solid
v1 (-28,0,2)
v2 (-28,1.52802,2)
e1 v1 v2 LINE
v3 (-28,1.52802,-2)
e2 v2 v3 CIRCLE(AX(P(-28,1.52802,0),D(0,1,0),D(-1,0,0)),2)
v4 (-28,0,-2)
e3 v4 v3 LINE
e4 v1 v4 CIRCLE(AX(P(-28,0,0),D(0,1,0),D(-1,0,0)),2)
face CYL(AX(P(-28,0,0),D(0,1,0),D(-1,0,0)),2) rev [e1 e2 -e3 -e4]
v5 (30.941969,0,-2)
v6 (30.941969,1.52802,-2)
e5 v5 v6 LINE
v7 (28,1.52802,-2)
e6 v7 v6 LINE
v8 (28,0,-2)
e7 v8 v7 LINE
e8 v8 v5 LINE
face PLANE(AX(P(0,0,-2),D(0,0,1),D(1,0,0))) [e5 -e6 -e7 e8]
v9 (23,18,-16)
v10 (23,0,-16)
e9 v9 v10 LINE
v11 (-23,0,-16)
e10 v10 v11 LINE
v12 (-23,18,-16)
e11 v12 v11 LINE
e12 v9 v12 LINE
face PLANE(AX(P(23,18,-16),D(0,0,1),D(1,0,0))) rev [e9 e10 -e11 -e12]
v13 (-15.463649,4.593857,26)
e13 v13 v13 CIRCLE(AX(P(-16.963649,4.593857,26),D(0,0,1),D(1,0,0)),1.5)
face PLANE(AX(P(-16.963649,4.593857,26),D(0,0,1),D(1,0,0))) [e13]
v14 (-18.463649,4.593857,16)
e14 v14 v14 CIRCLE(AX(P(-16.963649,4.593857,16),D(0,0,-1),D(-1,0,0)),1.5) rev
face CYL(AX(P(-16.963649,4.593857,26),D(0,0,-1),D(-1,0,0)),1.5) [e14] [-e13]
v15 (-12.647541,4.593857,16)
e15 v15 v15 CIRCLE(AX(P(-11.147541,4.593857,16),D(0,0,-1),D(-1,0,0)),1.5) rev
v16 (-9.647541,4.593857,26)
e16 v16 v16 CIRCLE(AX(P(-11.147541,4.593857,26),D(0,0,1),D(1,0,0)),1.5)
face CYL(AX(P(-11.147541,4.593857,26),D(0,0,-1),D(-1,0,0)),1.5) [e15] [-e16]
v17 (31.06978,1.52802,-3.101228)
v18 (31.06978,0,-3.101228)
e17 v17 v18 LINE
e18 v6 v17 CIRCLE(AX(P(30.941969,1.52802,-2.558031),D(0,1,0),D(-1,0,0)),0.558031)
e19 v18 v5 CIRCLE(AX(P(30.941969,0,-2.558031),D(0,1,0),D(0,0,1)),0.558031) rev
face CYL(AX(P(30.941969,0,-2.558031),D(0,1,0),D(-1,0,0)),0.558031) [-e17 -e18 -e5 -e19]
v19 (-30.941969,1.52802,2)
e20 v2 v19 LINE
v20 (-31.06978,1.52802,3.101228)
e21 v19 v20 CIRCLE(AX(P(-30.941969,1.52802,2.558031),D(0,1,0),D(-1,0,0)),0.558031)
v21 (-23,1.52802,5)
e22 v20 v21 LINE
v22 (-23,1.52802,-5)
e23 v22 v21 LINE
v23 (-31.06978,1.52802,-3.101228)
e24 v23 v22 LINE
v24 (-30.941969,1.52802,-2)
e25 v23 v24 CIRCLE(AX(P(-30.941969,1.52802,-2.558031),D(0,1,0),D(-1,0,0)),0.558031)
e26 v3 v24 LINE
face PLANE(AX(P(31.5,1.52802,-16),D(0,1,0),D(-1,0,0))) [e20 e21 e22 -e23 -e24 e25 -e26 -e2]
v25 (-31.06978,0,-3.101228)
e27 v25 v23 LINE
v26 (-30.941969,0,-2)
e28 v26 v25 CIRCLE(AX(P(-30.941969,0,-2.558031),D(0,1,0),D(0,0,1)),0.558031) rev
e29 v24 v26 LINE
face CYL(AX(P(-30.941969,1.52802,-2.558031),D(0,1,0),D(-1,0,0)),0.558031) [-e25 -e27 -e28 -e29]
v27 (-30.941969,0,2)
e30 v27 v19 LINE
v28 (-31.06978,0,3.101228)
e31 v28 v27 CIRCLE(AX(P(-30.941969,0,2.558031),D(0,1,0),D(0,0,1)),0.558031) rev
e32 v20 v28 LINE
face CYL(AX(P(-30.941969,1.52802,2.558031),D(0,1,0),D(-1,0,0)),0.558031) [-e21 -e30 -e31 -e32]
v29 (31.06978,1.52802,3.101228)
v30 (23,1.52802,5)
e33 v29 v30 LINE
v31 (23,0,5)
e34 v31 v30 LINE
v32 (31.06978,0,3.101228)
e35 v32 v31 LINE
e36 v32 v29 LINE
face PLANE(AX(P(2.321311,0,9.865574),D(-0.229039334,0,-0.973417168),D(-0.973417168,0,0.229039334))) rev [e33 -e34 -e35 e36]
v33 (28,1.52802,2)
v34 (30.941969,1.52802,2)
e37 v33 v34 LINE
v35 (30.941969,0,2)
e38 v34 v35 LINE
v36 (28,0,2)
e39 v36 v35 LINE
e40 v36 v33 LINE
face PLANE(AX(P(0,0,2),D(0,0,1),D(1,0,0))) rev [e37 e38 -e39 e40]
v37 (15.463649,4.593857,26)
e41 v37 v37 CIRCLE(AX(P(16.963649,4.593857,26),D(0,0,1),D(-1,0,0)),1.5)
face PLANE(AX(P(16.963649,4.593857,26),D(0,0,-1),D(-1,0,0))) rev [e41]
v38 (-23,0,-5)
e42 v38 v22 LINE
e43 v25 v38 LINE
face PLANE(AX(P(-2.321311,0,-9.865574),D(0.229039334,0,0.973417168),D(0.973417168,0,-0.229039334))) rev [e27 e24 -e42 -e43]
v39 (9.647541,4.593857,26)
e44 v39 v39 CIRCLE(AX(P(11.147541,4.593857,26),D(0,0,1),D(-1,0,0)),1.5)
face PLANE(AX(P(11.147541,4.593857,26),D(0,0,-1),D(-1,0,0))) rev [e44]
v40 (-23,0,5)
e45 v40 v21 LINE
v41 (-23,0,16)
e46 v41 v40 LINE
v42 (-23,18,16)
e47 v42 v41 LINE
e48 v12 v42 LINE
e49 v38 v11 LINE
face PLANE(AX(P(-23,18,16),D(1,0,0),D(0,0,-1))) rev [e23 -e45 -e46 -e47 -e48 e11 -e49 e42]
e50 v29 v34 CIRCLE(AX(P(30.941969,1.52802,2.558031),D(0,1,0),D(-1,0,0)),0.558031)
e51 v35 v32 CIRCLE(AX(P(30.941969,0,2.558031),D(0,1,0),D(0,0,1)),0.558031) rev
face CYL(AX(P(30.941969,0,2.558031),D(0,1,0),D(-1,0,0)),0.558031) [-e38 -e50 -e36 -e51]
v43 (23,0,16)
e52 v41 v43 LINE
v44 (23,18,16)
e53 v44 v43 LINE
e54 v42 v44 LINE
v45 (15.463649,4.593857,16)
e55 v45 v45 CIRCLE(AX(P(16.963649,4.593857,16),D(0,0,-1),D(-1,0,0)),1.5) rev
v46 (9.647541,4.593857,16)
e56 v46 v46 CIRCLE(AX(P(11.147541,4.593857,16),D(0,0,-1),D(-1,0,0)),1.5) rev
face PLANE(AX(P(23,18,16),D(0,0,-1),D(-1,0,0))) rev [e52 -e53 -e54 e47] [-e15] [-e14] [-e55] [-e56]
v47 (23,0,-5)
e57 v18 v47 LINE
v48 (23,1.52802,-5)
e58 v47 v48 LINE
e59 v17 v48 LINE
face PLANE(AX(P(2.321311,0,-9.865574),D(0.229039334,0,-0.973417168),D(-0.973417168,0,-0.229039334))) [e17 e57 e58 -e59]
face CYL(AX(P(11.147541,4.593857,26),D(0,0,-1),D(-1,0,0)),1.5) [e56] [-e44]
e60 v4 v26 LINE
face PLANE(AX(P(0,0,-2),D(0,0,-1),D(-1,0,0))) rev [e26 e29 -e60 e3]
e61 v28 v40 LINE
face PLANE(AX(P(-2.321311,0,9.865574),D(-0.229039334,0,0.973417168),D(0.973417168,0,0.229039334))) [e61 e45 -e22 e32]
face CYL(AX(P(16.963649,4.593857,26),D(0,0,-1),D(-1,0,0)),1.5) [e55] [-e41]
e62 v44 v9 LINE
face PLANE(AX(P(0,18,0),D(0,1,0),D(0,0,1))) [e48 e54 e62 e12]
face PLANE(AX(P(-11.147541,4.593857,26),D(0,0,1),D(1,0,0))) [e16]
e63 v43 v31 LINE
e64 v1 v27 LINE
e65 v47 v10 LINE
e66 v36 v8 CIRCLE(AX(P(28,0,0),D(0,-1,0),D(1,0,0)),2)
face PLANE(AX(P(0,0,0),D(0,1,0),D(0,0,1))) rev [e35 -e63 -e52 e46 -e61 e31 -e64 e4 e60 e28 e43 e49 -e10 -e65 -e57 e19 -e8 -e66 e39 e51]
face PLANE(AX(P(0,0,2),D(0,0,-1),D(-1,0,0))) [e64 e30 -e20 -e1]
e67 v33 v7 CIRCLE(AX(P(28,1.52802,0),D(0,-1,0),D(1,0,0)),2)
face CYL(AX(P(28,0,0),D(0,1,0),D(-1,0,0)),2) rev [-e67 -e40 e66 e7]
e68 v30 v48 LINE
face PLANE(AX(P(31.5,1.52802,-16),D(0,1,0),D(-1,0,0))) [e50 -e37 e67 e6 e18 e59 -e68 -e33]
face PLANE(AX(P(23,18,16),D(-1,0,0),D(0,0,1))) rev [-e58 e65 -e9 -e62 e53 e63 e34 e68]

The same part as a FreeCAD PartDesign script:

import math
import FreeCAD as App
import Part
import Sketcher


def edges_at(feature, points):
    """Names of the edges that pass closest to the given points."""
    edges = feature.Shape.Edges
    near = lambda p: min(range(len(edges)), key=lambda i: edges[i].distToShape(Part.Vertex(*p))[0])
    return sorted({f"Edge{near(p) + 1}" for p in points})


def add_polygon(sketch, points):
    """Adds a closed chain of lines whose ends are joined by coincident constraints."""
    first, n = sketch.GeometryCount, len(points)
    for a, b in zip(points, points[1:] + points[:1]):
        sketch.addGeometry(Part.LineSegment(App.Vector(*a, 0), App.Vector(*b, 0)), False)
    for i in range(n):
        sketch.addConstraint(Sketcher.Constraint("Coincident", first + i, 2, first + (i + 1) % n, 1))

doc = App.newDocument("Part")
params = doc.addObject("Spreadsheet::Sheet", "Params")
for row, (alias, value) in enumerate([
    ("sketch1_width", "46 mm"),
    ("sketch1_height", "32 mm"),
    ("pad1_length", "18 mm"),
    ("sketch2_width", "63 mm"),
    ("sketch3_radius", "2 mm"),
    ("sketch3_height", "13 mm"),
    ("sketch3_height2", "11 mm"),
    ("sketch3_width", "8.5 mm"),
    ("sketch3_width2", "3.5 mm"),
    ("fillet_radius", "0.558031 mm"),
    ("fillet2_radius", "0.558031 mm"),
    ("fillet3_radius", "0.558031 mm"),
    ("fillet4_radius", "0.558031 mm"),
    ("sketch4_diameter", "3 mm"),
    ("pad3_length", "10 mm"),
], start=1):
    params.set(f"A{row}", alias)
    params.set(f"B{row}", "=" + value)
    params.setAlias(f"B{row}", alias)

body = doc.addObject("PartDesign::Body", "Body")

# Sketch on XZ plane
sketch1 = body.newObject("Sketcher::SketchObject", "Sketch")
sketch1.AttachmentSupport = (doc.getObject("XZ_Plane"), [""])
sketch1.MapMode = "FlatFace"
add_polygon(sketch1, [(-23, -16), (-23, 16), (23, 16), (23, -16)])  # lines 0-3
sketch1.addConstraint([
    Sketcher.Constraint("Vertical", 0),
    Sketcher.Constraint("Horizontal", 1),
    Sketcher.Constraint("Vertical", 2),
    Sketcher.Constraint("Horizontal", 3),
    Sketcher.Constraint("Symmetric", 0, 2, 2, 2, -1, 1),
    Sketcher.Constraint("DistanceX", 1, 1, 1, 2, 46.0),
    Sketcher.Constraint("DistanceY", 0, 1, 0, 2, 32.0),
])
sketch1.setExpression("Constraints[9]", "Params.sketch1_width")
sketch1.setExpression("Constraints[10]", "Params.sketch1_height")
pad1 = body.newObject("PartDesign::Pad", "Pad")
pad1.Profile = sketch1
pad1.setExpression("Length", "Params.pad1_length")
pad1.Reversed = True

# Sketch on XY plane
sketch2 = body.newObject("Sketcher::SketchObject", "Sketch001")
sketch2.AttachmentSupport = (doc.getObject("XY_Plane"), [""])
sketch2.MapMode = "FlatFace"
sketch2.AttachmentOffset = App.Placement(App.Vector(0, 0, 16), App.Rotation())
add_polygon(sketch2, [(-31.5, 1.5), (-31.5, 0), (31.5, 0), (31.5, 1.5)])  # lines 0-3
sketch2.addConstraint([
    Sketcher.Constraint("Vertical", 0),
    Sketcher.Constraint("Horizontal", 1),
    Sketcher.Constraint("Vertical", 2),
    Sketcher.Constraint("Horizontal", 3),
    Sketcher.Constraint("Symmetric", 0, 2, 1, 2, -1, 1),
    Sketcher.Constraint("DistanceX", 1, 1, 1, 2, 63.0),
    Sketcher.Constraint("DistanceY", 0, 2, 0, 1, 1.52802),
])
sketch2.setExpression("Constraints[9]", "Params.sketch2_width")
pad2 = body.newObject("PartDesign::Pad", "Pad001")
pad2.Profile = sketch2
pad2.Type = "UpToLast"
pad2.Reversed = True

# Sketch on XZ plane
sketch3 = body.newObject("Sketcher::SketchObject", "Sketch002")
sketch3.AttachmentSupport = (doc.getObject("XZ_Plane"), [""])
sketch3.MapMode = "FlatFace"
sketch3.AttachmentOffset = App.Placement(App.Vector(0, 0, -1.52802), App.Rotation())
add_polygon(sketch3, [(-31.5, -16), (-31.5, -3), (-23, -5), (-23, -16)])  # lines 0-3
add_polygon(sketch3, [(-23, 5), (-31.5, 3), (-31.5, 16), (-23, 16)])  # lines 4-7
sketch3.addGeometry(Part.ArcOfCircle(Part.Circle(App.Vector(-28, 0, 0), App.Vector(0, 0, 1), 2), math.radians(-90), math.radians(90)), False)  # 8
sketch3.addGeometry(Part.LineSegment(App.Vector(-28, -2, 0), App.Vector(-31.5, -2, 0)), False)  # 9
sketch3.addGeometry(Part.LineSegment(App.Vector(-31.5, -2, 0), App.Vector(-31.5, 2, 0)), False)  # 10
sketch3.addGeometry(Part.LineSegment(App.Vector(-31.5, 2, 0), App.Vector(-28, 2, 0)), False)  # 11
sketch3.addConstraint([
    Sketcher.Constraint("Tangent", 8, 1, 9, 1),
    Sketcher.Constraint("Coincident", 9, 2, 10, 1),
    Sketcher.Constraint("Coincident", 10, 2, 11, 1),
    Sketcher.Constraint("Tangent", 11, 2, 8, 2),
    Sketcher.Constraint("Vertical", 0),
    Sketcher.Constraint("Vertical", 2),
    Sketcher.Constraint("Horizontal", 3),
    Sketcher.Constraint("Vertical", 5),
    Sketcher.Constraint("Horizontal", 6),
    Sketcher.Constraint("Vertical", 7),
    Sketcher.Constraint("Horizontal", 9),
    Sketcher.Constraint("Vertical", 10),
    Sketcher.Constraint("Horizontal", 11),
    Sketcher.Constraint("Symmetric", 0, 2, 4, 2, -1),
    Sketcher.Constraint("Symmetric", 2, 2, 6, 2, -1),
    Sketcher.Constraint("PointOnObject", 8, 3, -1),
    Sketcher.Constraint("Vertical", 5, 2, 9, 2),
    Sketcher.Constraint("Equal", 2, 7),
    Sketcher.Constraint("Radius", 8, 2.0),
    Sketcher.Constraint("DistanceY", 0, 1, 0, 2, 13.0),
    Sketcher.Constraint("DistanceY", 2, 2, 2, 1, 11.0),
    Sketcher.Constraint("DistanceX", 3, 2, 3, 1, 8.5),
    Sketcher.Constraint("DistanceX", 9, 2, 9, 1, 3.5),
    Sketcher.Constraint("DistanceX", 8, 3, -1, 1, 28.0),
    Sketcher.Constraint("DistanceY", 0, 2, -1, 1, 3.0),
])
sketch3.setExpression("Constraints[26]", "Params.sketch3_radius")
sketch3.setExpression("Constraints[27]", "Params.sketch3_height")
sketch3.setExpression("Constraints[28]", "Params.sketch3_height2")
sketch3.setExpression("Constraints[29]", "Params.sketch3_width")
sketch3.setExpression("Constraints[30]", "Params.sketch3_width2")
pocket1 = body.newObject("PartDesign::Pocket", "Pocket")
pocket1.Profile = sketch3
pocket1.Type = "ThroughAll"
pocket1.Reversed = True
doc.recompute()

fillet = body.newObject("PartDesign::Fillet", "Fillet")
fillet.Base = (pocket1, edges_at(pocket1, [(-31.5, 0.764, -3), (-31.5, 0.764, -2)]))
fillet.setExpression("Radius", "Params.fillet_radius")
doc.recompute()

fillet2 = body.newObject("PartDesign::Fillet", "Fillet001")
fillet2.Base = (fillet, edges_at(fillet, [(-31.5, 0.764, 3), (-31.5, 0.764, 2)]))
fillet2.setExpression("Radius", "Params.fillet2_radius")
doc.recompute()

mirrored = body.newObject("PartDesign::Mirrored", "Mirrored")
mirrored.Originals = [pocket1]
mirrored.MirrorPlane = (doc.getObject("YZ_Plane"), [""])
body.Tip = mirrored
doc.recompute()

fillet3 = body.newObject("PartDesign::Fillet", "Fillet002")
fillet3.Base = (mirrored, edges_at(mirrored, [(31.5, 0.764, -3), (31.5, 0.764, -2)]))
fillet3.setExpression("Radius", "Params.fillet3_radius")
doc.recompute()

fillet4 = body.newObject("PartDesign::Fillet", "Fillet003")
fillet4.Base = (fillet3, edges_at(fillet3, [(31.5, 0.764, 3), (31.5, 0.764, 2)]))
fillet4.setExpression("Radius", "Params.fillet4_radius")

# Sketch on XY plane
sketch4 = body.newObject("Sketcher::SketchObject", "Sketch003")
sketch4.AttachmentSupport = (doc.getObject("XY_Plane"), [""])
sketch4.MapMode = "FlatFace"
sketch4.AttachmentOffset = App.Placement(App.Vector(0, 0, 16), App.Rotation())
sketch4.addGeometry([
    Part.Circle(App.Vector(-17, 4.6, 0), App.Vector(0, 0, 1), 1.5),
    Part.Circle(App.Vector(-11.1, 4.6, 0), App.Vector(0, 0, 1), 1.5),
    Part.Circle(App.Vector(11.1, 4.6, 0), App.Vector(0, 0, 1), 1.5),
    Part.Circle(App.Vector(17, 4.6, 0), App.Vector(0, 0, 1), 1.5),
], False)
sketch4.addConstraint([
    Sketcher.Constraint("Equal", 0, 1),
    Sketcher.Constraint("Equal", 1, 2),
    Sketcher.Constraint("Equal", 2, 3),
    Sketcher.Constraint("Symmetric", 1, 3, 2, 3, -2),
    Sketcher.Constraint("Symmetric", 0, 3, 3, 3, -2),
    Sketcher.Constraint("Horizontal", 0, 3, 1, 3),
    Sketcher.Constraint("Diameter", 0, 3.0),
    Sketcher.Constraint("DistanceX", 0, 3, 3, 3, 33.927299),
    Sketcher.Constraint("DistanceX", 1, 3, -1, 1, 11.147541),
    Sketcher.Constraint("DistanceY", -1, 1, 0, 3, 4.593857),
])
sketch4.setExpression("Constraints[6]", "Params.sketch4_diameter")
pad3 = body.newObject("PartDesign::Pad", "Pad002")
pad3.Profile = sketch4
pad3.setExpression("Length", "Params.pad3_length")

doc.recompute()
